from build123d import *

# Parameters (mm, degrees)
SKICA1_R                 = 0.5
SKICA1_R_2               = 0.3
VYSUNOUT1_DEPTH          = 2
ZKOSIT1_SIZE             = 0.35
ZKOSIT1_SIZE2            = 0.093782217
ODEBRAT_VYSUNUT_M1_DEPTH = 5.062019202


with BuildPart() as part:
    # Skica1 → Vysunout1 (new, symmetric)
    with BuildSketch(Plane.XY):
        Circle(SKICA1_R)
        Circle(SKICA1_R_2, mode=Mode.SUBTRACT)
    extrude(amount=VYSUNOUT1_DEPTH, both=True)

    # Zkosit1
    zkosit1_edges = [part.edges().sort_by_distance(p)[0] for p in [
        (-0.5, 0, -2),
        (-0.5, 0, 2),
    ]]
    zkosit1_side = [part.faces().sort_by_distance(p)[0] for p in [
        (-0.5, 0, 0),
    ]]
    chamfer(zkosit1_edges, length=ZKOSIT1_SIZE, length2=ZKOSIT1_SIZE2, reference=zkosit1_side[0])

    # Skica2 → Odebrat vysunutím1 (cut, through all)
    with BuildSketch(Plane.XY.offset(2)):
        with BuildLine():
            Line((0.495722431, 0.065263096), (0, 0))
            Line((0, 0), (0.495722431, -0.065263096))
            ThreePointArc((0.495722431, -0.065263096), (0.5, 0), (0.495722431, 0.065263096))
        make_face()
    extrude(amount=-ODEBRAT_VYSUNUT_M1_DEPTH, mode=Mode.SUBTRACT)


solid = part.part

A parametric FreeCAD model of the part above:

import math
import FreeCAD as App
import Part
import Sketcher
from FreeCAD import Vector
Q = App.Units.Quantity


def edges_at(feature, points):
    """Names of the edges that pass closest to the given points."""
    edges = feature.Shape.Edges
    near = lambda p: min(range(len(edges)), key=lambda i: edges[i].distToShape(Part.Vertex(*p))[0])
    return sorted({f"Edge{near(p) + 1}" for p in points})

doc = App.newDocument("Part")
body = doc.addObject("PartDesign::Body", "Body")

sketch1 = body.newObject("Sketcher::SketchObject", "Sketch")
sketch1.AttachmentSupport = (doc.getObject("XY_Plane"), [""])
sketch1.MapMode = "FlatFace"
sketch1.addGeometry([
    Part.Circle(Vector(0, 0, 0), Vector(0, 0, 1), 0.5),
    Part.Circle(Vector(0, 0, 0), Vector(0, 0, 1), 0.3),
], False)
sketch1.addConstraint([
    Sketcher.Constraint("Coincident", 0, 3, -1, 1),
    Sketcher.Constraint("Coincident", 1, 3, -1, 1),
    Sketcher.Constraint("Diameter", 0, 1.0),
    Sketcher.Constraint("Diameter", 1, 0.6),
])
pad1 = body.newObject("PartDesign::Pad", "Pad")
pad1.Profile = sketch1
pad1.Length = 4
pad1.Midplane = True
doc.recompute()

chamfer = body.newObject("PartDesign::Chamfer", "Chamfer")
chamfer.Base = (pad1, edges_at(pad1, [(-0.5, 0, -2), (-0.5, 0, 2)]))
chamfer.ChamferType = "Two distances"
chamfer.Size = 0.35
chamfer.Size2 = 0.093782

sketch2 = body.newObject("Sketcher::SketchObject", "Sketch001")
sketch2.AttachmentSupport = (doc.getObject("XY_Plane"), [""])
sketch2.MapMode = "FlatFace"
sketch2.AttachmentOffset = App.Placement(Vector(0, 0, 2), App.Rotation())
sketch2.addGeometry([
    Part.LineSegment(Vector(0.495722, 0.065263, 0), Vector(0, 0, 0)),
    Part.LineSegment(Vector(0, 0, 0), Vector(0.495722, -0.065263, 0)),
    Part.ArcOfCircle(Part.Circle(Vector(0, 0, 0), Vector(0, 0, 1), 0.5), math.radians(-7.499999), math.radians(7.499999)),
], False)
sketch2.addConstraint([
    Sketcher.Constraint("Coincident", 0, 2, 1, 1),
    Sketcher.Constraint("Coincident", 1, 2, 2, 1),
    Sketcher.Constraint("Coincident", 2, 2, 0, 1),
    Sketcher.Constraint("Coincident", 2, 3, -1, 1),
    Sketcher.Constraint("Coincident", 0, 2, -1, 1),
    Sketcher.Constraint("Vertical", 1, 2, 2, 2),
    Sketcher.Constraint("Radius", 2, 0.5),
    Sketcher.Constraint("Angle", 0, Q("-172.5 deg")),
])
pocket1 = body.newObject("PartDesign::Pocket", "Pocket")
pocket1.Profile = sketch2
pocket1.Type = "ThroughAll"

doc.recompute()
